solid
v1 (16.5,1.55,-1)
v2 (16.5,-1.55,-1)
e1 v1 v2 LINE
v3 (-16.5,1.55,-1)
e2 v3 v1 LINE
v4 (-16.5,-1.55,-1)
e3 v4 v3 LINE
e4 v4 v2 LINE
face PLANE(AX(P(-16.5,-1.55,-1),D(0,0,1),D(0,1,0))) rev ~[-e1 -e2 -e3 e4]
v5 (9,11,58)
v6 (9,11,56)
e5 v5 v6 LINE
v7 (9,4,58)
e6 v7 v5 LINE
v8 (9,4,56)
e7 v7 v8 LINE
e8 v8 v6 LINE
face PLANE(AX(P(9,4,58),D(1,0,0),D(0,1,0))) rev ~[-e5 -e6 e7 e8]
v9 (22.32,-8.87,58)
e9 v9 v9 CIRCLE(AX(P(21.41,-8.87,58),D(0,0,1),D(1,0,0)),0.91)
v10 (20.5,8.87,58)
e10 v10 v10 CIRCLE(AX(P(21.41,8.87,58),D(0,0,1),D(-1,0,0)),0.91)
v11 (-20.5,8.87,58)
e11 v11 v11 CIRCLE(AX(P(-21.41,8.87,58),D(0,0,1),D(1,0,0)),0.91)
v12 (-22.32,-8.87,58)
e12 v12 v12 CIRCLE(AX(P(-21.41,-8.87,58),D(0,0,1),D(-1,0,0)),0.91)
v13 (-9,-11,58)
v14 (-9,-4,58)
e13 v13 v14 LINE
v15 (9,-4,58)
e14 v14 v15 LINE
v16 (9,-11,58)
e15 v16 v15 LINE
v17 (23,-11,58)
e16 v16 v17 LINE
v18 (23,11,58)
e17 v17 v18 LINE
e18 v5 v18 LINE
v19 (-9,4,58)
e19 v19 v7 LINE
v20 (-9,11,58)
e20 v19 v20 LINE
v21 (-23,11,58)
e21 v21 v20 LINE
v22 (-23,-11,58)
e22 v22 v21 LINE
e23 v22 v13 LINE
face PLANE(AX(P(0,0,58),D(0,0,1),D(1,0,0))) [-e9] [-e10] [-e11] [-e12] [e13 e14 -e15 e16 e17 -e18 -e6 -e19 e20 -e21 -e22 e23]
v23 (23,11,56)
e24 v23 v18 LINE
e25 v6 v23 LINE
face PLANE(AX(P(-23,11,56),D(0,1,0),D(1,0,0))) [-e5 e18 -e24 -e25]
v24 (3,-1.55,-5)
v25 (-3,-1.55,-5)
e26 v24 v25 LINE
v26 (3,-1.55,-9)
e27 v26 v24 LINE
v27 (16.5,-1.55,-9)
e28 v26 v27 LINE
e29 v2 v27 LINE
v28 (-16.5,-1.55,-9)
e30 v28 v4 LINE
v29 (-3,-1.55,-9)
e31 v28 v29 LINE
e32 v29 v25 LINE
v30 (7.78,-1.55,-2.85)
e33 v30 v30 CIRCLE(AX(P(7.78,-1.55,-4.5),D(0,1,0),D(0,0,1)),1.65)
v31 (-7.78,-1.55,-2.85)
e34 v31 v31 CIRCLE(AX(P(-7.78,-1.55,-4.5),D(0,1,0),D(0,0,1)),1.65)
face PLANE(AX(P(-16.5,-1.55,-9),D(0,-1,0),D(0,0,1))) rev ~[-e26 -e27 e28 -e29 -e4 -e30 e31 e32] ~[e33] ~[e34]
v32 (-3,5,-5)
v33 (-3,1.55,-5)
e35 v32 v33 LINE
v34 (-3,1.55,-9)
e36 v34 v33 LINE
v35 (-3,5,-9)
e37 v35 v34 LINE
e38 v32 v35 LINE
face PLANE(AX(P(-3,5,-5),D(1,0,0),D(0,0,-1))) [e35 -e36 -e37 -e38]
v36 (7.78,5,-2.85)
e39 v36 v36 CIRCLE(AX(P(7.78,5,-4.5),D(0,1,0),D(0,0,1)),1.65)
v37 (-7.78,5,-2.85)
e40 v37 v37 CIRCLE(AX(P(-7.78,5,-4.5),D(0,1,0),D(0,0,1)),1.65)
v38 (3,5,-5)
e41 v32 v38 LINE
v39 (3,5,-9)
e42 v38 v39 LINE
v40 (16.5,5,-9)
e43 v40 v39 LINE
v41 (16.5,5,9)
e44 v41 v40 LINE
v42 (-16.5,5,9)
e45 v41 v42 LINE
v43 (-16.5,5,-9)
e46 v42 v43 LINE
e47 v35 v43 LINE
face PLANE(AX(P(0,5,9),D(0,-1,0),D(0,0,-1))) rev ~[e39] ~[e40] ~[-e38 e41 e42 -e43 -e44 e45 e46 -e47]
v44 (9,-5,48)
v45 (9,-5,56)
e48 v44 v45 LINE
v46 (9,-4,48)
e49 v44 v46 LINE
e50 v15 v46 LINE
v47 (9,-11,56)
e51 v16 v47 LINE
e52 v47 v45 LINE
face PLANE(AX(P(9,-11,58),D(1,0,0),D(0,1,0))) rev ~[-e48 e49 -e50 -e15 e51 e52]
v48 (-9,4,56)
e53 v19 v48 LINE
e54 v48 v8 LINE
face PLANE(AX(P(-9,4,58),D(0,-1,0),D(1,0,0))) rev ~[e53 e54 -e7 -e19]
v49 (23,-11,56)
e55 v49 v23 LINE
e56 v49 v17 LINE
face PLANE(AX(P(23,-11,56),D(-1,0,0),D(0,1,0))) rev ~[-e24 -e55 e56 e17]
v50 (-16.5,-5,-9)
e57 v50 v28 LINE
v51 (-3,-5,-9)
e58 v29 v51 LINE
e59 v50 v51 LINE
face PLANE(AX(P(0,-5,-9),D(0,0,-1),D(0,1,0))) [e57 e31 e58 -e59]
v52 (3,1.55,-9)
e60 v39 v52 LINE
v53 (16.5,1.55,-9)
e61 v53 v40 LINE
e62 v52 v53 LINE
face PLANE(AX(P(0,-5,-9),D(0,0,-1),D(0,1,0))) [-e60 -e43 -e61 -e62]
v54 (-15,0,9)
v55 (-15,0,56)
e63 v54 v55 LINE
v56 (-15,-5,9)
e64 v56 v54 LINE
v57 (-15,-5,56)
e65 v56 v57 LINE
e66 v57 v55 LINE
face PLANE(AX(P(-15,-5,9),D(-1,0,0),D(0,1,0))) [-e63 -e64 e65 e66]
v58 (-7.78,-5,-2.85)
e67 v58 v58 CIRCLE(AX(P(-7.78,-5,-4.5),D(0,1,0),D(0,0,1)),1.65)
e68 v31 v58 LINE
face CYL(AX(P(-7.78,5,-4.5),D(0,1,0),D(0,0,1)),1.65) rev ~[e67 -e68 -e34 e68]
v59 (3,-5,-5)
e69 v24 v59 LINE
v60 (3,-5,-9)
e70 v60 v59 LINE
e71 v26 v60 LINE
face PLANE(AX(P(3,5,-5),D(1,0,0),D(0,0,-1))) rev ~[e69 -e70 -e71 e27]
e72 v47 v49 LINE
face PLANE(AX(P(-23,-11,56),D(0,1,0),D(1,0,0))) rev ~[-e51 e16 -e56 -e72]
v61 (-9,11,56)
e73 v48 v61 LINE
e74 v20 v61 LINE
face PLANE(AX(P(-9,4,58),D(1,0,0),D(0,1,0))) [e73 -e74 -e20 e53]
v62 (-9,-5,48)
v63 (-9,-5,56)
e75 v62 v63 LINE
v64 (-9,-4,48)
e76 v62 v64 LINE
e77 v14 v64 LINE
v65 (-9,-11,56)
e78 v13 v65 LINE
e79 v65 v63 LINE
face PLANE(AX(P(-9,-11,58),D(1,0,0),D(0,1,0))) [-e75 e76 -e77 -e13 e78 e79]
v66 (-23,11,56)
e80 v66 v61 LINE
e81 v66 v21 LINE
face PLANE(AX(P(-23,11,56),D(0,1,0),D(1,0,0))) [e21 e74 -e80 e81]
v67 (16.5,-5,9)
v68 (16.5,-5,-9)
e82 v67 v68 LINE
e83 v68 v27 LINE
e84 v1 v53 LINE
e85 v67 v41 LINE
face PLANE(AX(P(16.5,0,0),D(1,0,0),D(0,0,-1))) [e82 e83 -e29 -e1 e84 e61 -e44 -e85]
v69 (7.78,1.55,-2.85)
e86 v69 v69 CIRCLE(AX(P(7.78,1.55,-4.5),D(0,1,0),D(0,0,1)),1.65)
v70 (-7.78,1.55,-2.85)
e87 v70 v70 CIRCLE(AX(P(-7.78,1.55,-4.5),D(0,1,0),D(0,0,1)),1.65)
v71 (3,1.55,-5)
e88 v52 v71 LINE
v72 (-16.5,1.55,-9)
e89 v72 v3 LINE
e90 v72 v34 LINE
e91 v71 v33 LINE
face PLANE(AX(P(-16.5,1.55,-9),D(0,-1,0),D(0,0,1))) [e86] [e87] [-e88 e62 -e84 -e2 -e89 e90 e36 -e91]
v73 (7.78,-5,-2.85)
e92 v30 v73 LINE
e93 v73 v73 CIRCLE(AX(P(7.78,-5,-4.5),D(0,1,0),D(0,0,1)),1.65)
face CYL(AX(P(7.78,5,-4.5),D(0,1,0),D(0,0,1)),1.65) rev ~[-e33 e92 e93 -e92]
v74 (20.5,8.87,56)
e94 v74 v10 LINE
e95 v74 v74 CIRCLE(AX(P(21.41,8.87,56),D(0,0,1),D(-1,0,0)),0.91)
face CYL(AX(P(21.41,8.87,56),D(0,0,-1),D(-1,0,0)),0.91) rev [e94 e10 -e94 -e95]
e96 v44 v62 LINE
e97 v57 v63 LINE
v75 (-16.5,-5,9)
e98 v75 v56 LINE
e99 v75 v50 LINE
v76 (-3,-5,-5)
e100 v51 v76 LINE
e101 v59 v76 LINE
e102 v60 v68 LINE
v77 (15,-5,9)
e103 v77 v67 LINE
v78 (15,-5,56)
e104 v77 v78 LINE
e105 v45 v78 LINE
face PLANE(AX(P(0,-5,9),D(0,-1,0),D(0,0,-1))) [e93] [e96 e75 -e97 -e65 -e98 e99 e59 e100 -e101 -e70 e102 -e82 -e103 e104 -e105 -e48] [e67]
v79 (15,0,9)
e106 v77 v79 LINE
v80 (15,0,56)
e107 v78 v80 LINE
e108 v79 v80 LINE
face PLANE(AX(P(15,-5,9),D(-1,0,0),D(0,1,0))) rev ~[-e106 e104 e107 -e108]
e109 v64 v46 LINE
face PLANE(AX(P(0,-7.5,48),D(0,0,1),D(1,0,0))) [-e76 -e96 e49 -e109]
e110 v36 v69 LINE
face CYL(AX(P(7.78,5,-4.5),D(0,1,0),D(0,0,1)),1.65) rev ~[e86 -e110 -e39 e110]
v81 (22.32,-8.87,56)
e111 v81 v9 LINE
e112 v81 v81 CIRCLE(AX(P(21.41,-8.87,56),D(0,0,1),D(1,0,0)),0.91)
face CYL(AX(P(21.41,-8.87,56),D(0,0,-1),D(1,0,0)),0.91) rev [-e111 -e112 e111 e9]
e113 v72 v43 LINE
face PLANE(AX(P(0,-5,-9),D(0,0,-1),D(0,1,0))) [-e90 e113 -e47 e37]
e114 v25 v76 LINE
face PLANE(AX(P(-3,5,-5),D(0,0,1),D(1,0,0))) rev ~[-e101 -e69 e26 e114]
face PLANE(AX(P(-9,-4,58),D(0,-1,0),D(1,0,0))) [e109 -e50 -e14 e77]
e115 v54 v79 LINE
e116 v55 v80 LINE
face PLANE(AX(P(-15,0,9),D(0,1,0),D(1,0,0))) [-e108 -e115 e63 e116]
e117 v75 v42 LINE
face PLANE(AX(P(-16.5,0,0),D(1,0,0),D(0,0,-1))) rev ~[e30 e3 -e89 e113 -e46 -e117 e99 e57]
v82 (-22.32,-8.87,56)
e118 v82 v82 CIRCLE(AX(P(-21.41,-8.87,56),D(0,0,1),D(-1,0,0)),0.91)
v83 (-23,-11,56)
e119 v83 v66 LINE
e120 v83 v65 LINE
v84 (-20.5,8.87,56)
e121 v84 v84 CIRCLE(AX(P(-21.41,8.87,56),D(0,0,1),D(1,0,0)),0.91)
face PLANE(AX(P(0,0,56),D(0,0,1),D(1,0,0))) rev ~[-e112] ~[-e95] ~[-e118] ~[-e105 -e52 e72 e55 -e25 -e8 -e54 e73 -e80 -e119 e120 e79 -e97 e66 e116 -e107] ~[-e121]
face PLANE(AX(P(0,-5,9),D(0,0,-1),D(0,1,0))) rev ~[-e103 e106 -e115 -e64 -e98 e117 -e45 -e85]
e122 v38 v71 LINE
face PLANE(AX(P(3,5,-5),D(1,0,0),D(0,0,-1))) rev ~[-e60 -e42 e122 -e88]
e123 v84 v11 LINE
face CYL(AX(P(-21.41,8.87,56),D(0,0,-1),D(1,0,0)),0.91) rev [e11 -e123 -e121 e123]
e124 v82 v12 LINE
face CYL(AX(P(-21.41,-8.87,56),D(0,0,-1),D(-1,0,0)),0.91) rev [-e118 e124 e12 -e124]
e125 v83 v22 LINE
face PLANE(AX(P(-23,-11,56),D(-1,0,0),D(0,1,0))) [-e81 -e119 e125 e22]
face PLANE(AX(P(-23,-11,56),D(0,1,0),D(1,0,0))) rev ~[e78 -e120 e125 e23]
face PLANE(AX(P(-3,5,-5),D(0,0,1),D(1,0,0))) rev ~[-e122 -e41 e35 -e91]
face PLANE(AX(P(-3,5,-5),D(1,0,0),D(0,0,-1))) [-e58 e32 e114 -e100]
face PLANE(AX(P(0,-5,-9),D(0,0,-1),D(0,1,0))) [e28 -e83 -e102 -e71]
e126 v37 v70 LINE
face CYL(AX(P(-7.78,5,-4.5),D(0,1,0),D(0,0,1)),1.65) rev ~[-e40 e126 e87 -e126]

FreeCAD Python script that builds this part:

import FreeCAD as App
import Part
import Sketcher

V = App.Vector


def add_polygon(sketch, points):
    """Adds a closed chain of lines whose ends are joined by coincident constraints."""
    first, n = sketch.GeometryCount, len(points)
    for a, b in zip(points, points[1:] + points[:1]):
        sketch.addGeometry(Part.LineSegment(App.Vector(*a, 0), App.Vector(*b, 0)), False)
    for i in range(n):
        sketch.addConstraint(Sketcher.Constraint("Coincident", first + i, 2, first + (i + 1) % n, 1))

doc = App.newDocument("Part")
params = doc.addObject("Spreadsheet::Sheet", "Params")
for row, (alias, value) in enumerate([
    ("sketch1_width", "10 mm"),
    ("sketch1_height", "18 mm"),
    ("pad1_length", "33 mm"),
    ("sketch2_height", "8 mm"),
    ("sketch2_width", "3.1 mm"),
    ("pocket1_length", "40 mm"),
    ("sketch3_diameter", "3.3 mm"),
    ("pocket2_length", "20 mm"),
    ("sketch4_width", "6 mm"),
    ("sketch4_height", "8 mm"),
    ("pocket3_length", "20 mm"),
    ("sketch5_width", "30 mm"),
    ("sketch5_height", "5 mm"),
    ("pad2_length", "47 mm"),
    ("sketch6_diameter", "1.82 mm"),
    ("sketch6_width", "46 mm"),
    ("sketch6_height", "22 mm"),
    ("pad3_length", "2 mm"),
    ("sketch7_width", "18 mm"),
    ("sketch7_height", "7 mm"),
    ("pocket4_length", "10 mm"),
], start=1):
    params.set(f"A{row}", alias)
    params.set(f"B{row}", "=" + value)
    params.setAlias(f"B{row}", alias)

body = doc.addObject("PartDesign::Body", "Body")

# Sketch on YZ plane
sketch1 = doc.addObject("Sketcher::SketchObject", "Sketch")
body.addObject(sketch1)
sketch1.AttachmentSupport = (doc.YZ_Plane, [""])
sketch1.MapMode = "FlatFace"
add_polygon(sketch1, [(5, 9), (-5, 9), (-5, -9), (5, -9)])  # lines 0-3
sketch1.addConstraint(Sketcher.Constraint("Horizontal", 0))
sketch1.addConstraint(Sketcher.Constraint("Vertical", 1))
sketch1.addConstraint(Sketcher.Constraint("Horizontal", 2))
sketch1.addConstraint(Sketcher.Constraint("Vertical", 3))
sketch1.addConstraint(Sketcher.Constraint("Symmetric", 0, 2, 2, 2, -1, 1))
sketch1.addConstraint(Sketcher.Constraint("DistanceX", 0, 2, 0, 1, 10.0))
sketch1.addConstraint(Sketcher.Constraint("DistanceY", 1, 2, 1, 1, 18.0))
sketch1.setExpression("Constraints[9]", "Params.sketch1_width")
sketch1.setExpression("Constraints[10]", "Params.sketch1_height")
pad1 = doc.addObject("PartDesign::Pad", "Pad")
body.addObject(pad1)
pad1.Profile = sketch1
pad1.setExpression("Length", "Params.pad1_length")
pad1.Midplane = True

# Sketch on YZ plane
sketch2 = doc.addObject("Sketcher::SketchObject", "Sketch001")
body.addObject(sketch2)
sketch2.AttachmentSupport = (doc.YZ_Plane, [""])
sketch2.MapMode = "FlatFace"
sketch2.AttachmentOffset = App.Placement(V(0, 0, -16.5), App.Rotation())
add_polygon(sketch2, [(1.6, -9), (-1.6, -9), (-1.6, -1), (1.6, -1)])  # lines 0-3
sketch2.addConstraint(Sketcher.Constraint("Horizontal", 0))
sketch2.addConstraint(Sketcher.Constraint("Vertical", 1))
sketch2.addConstraint(Sketcher.Constraint("Horizontal", 2))
sketch2.addConstraint(Sketcher.Constraint("Vertical", 3))
sketch2.addConstraint(Sketcher.Constraint("DistanceY", 1, 1, 1, 2, 8.0))
sketch2.addConstraint(Sketcher.Constraint("DistanceX", 0, 2, 0, 1, 3.1))
sketch2.addConstraint(Sketcher.Constraint("DistanceY", 0, 2, -1, 1, 9.0))
sketch2.addConstraint(Sketcher.Constraint("DistanceX", 0, 2, -1, 1, 1.55))
sketch2.setExpression("Constraints[8]", "Params.sketch2_height")
sketch2.setExpression("Constraints[9]", "Params.sketch2_width")
pocket1 = doc.addObject("PartDesign::Pocket", "Pocket")
body.addObject(pocket1)
pocket1.Profile = sketch2
pocket1.setExpression("Length", "Params.pocket1_length")
pocket1.Reversed = True

# Sketch on XZ plane
sketch3 = doc.addObject("Sketcher::SketchObject", "Sketch002")
body.addObject(sketch3)
sketch3.AttachmentSupport = (doc.XZ_Plane, [""])
sketch3.MapMode = "FlatFace"
sketch3.AttachmentOffset = App.Placement(V(0, 0, -5), App.Rotation())
sketch3.addGeometry(Part.Circle(V(-7.8, -4.5, 0), V(0, 0, 1), 1.6), False)
sketch3.addGeometry(Part.Circle(V(7.8, -4.5, 0), V(0, 0, 1), 1.6), False)
sketch3.addConstraint(Sketcher.Constraint("Equal", 0, 1))
sketch3.addConstraint(Sketcher.Constraint("Symmetric", 0, 3, 1, 3, -2))
sketch3.addConstraint(Sketcher.Constraint("Diameter", 0, 3.3))
sketch3.addConstraint(Sketcher.Constraint("DistanceY", 0, 3, -1, 1, 4.5))
sketch3.addConstraint(Sketcher.Constraint("DistanceX", 0, 3, -1, 1, 7.78))
sketch3.setExpression("Constraints[2]", "Params.sketch3_diameter")
pocket2 = doc.addObject("PartDesign::Pocket", "Pocket001")
body.addObject(pocket2)
pocket2.Profile = sketch3
pocket2.setExpression("Length", "Params.pocket2_length")
pocket2.Reversed = True

# Sketch on XZ plane
sketch4 = doc.addObject("Sketcher::SketchObject", "Sketch003")
body.addObject(sketch4)
sketch4.AttachmentSupport = (doc.XZ_Plane, [""])
sketch4.MapMode = "FlatFace"
sketch4.AttachmentOffset = App.Placement(V(0, 0, -5), App.Rotation())
add_polygon(sketch4, [(-3, -13), (-3, -5), (3, -5), (3, -13)])  # lines 0-3
sketch4.addConstraint(Sketcher.Constraint("Vertical", 0))
sketch4.addConstraint(Sketcher.Constraint("Horizontal", 1))
sketch4.addConstraint(Sketcher.Constraint("Vertical", 2))
sketch4.addConstraint(Sketcher.Constraint("Horizontal", 3))
sketch4.addConstraint(Sketcher.Constraint("DistanceX", 1, 1, 1, 2, 6.0))
sketch4.addConstraint(Sketcher.Constraint("DistanceY", 0, 1, 0, 2, 8.0))
sketch4.addConstraint(Sketcher.Constraint("DistanceX", 0, 2, -1, 1, 3.0))
sketch4.addConstraint(Sketcher.Constraint("DistanceY", 0, 2, -1, 1, 5.0))
sketch4.setExpression("Constraints[8]", "Params.sketch4_width")
sketch4.setExpression("Constraints[9]", "Params.sketch4_height")
pocket3 = doc.addObject("PartDesign::Pocket", "Pocket002")
body.addObject(pocket3)
pocket3.Profile = sketch4
pocket3.setExpression("Length", "Params.pocket3_length")
pocket3.Reversed = True

# Sketch on XY plane
sketch5 = doc.addObject("Sketcher::SketchObject", "Sketch004")
body.addObject(sketch5)
sketch5.AttachmentSupport = (doc.XY_Plane, [""])
sketch5.MapMode = "FlatFace"
sketch5.AttachmentOffset = App.Placement(V(0, 0, 9), App.Rotation())
add_polygon(sketch5, [(-15, 0), (-15, -5), (15, -5), (15, 0)])  # lines 0-3
sketch5.addConstraint(Sketcher.Constraint("Vertical", 0))
sketch5.addConstraint(Sketcher.Constraint("Horizontal", 1))
sketch5.addConstraint(Sketcher.Constraint("Vertical", 2))
sketch5.addConstraint(Sketcher.Constraint("Horizontal", 3))
sketch5.addConstraint(Sketcher.Constraint("Symmetric", 2, 2, 3, 2, -1, 1))
sketch5.addConstraint(Sketcher.Constraint("DistanceX", 1, 1, 1, 2, 30.0))
sketch5.addConstraint(Sketcher.Constraint("DistanceY", 0, 2, 0, 1, 5.0))
sketch5.setExpression("Constraints[9]", "Params.sketch5_width")
sketch5.setExpression("Constraints[10]", "Params.sketch5_height")
pad2 = doc.addObject("PartDesign::Pad", "Pad001")
body.addObject(pad2)
pad2.Profile = sketch5
pad2.setExpression("Length", "Params.pad2_length")

# Sketch on XY plane
sketch6 = doc.addObject("Sketcher::SketchObject", "Sketch005")
body.addObject(sketch6)
sketch6.AttachmentSupport = (doc.XY_Plane, [""])
sketch6.MapMode = "FlatFace"
sketch6.AttachmentOffset = App.Placement(V(0, 0, 56), App.Rotation())
add_polygon(sketch6, [(-23, 11), (-23, -11), (23, -11), (23, 11)])  # lines 0-3
sketch6.addGeometry(Part.Circle(V(-21.4, -8.9, 0), V(0, 0, 1), 0.9), False)  # 4
sketch6.addGeometry(Part.Circle(V(21.4, -8.9, 0), V(0, 0, 1), 0.9), False)  # 5
sketch6.addGeometry(Part.Circle(V(-21.4, 8.9, 0), V(0, 0, 1), 0.9), False)  # 6
sketch6.addGeometry(Part.Circle(V(21.4, 8.9, 0), V(0, 0, 1), 0.9), False)  # 7
sketch6.addConstraint(Sketcher.Constraint("Vertical", 0))
sketch6.addConstraint(Sketcher.Constraint("Horizontal", 1))
sketch6.addConstraint(Sketcher.Constraint("Vertical", 2))
sketch6.addConstraint(Sketcher.Constraint("Horizontal", 3))
sketch6.addConstraint(Sketcher.Constraint("Equal", 4, 5))
sketch6.addConstraint(Sketcher.Constraint("Equal", 5, 6))
sketch6.addConstraint(Sketcher.Constraint("Equal", 6, 7))
sketch6.addConstraint(Sketcher.Constraint("Symmetric", 5, 3, 6, 3, -1, 1))
sketch6.addConstraint(Sketcher.Constraint("Symmetric", 4, 3, 7, 3, -1, 1))
sketch6.addConstraint(Sketcher.Constraint("Symmetric", 0, 2, 2, 2, -1, 1))
sketch6.addConstraint(Sketcher.Constraint("Symmetric", 4, 3, 5, 3, -2))
sketch6.addConstraint(Sketcher.Constraint("Diameter", 4, 1.82))
sketch6.addConstraint(Sketcher.Constraint("DistanceX", 1, 1, 1, 2, 46.0))
sketch6.addConstraint(Sketcher.Constraint("DistanceY", 0, 2, 0, 1, 22.0))
sketch6.addConstraint(Sketcher.Constraint("DistanceX", 4, 3, -1, 1, 21.41))
sketch6.addConstraint(Sketcher.Constraint("DistanceY", 4, 3, -1, 1, 8.87))
sketch6.setExpression("Constraints[15]", "Params.sketch6_diameter")
sketch6.setExpression("Constraints[16]", "Params.sketch6_width")
sketch6.setExpression("Constraints[17]", "Params.sketch6_height")
pad3 = doc.addObject("PartDesign::Pad", "Pad002")
body.addObject(pad3)
pad3.Profile = sketch6
pad3.setExpression("Length", "Params.pad3_length")

# Sketch on XY plane
sketch7 = doc.addObject("Sketcher::SketchObject", "Sketch006")
body.addObject(sketch7)
sketch7.AttachmentSupport = (doc.XY_Plane, [""])
sketch7.MapMode = "FlatFace"
sketch7.AttachmentOffset = App.Placement(V(0, 0, 58), App.Rotation())
add_polygon(sketch7, [(-9, 11), (-9, 4), (9, 4), (9, 11)])  # lines 0-3
add_polygon(sketch7, [(-9, -4), (-9, -11), (9, -11), (9, -4)])  # lines 4-7
sketch7.addConstraint(Sketcher.Constraint("Vertical", 0))
sketch7.addConstraint(Sketcher.Constraint("Horizontal", 1))
sketch7.addConstraint(Sketcher.Constraint("Vertical", 2))
sketch7.addConstraint(Sketcher.Constraint("Horizontal", 3))
sketch7.addConstraint(Sketcher.Constraint("Vertical", 4))
sketch7.addConstraint(Sketcher.Constraint("Horizontal", 5))
sketch7.addConstraint(Sketcher.Constraint("Vertical", 6))
sketch7.addConstraint(Sketcher.Constraint("Horizontal", 7))
sketch7.addConstraint(Sketcher.Constraint("Symmetric", 2, 2, 4, 2, -1, 1))
sketch7.addConstraint(Sketcher.Constraint("Symmetric", 0, 2, 6, 2, -1, 1))
sketch7.addConstraint(Sketcher.Constraint("Vertical", 3, 2, 4, 2))
sketch7.addConstraint(Sketcher.Constraint("DistanceX", 1, 1, 1, 2, 18.0))
sketch7.addConstraint(Sketcher.Constraint("DistanceY", 0, 2, 0, 1, 7.0))
sketch7.addConstraint(Sketcher.Constraint("DistanceY", -1, 1, 0, 2, 4.0))
sketch7.setExpression("Constraints[19]", "Params.sketch7_width")
sketch7.setExpression("Constraints[20]", "Params.sketch7_height")
pocket4 = doc.addObject("PartDesign::Pocket", "Pocket003")
body.addObject(pocket4)
pocket4.Profile = sketch7
pocket4.setExpression("Length", "Params.pocket4_length")

doc.recompute()
